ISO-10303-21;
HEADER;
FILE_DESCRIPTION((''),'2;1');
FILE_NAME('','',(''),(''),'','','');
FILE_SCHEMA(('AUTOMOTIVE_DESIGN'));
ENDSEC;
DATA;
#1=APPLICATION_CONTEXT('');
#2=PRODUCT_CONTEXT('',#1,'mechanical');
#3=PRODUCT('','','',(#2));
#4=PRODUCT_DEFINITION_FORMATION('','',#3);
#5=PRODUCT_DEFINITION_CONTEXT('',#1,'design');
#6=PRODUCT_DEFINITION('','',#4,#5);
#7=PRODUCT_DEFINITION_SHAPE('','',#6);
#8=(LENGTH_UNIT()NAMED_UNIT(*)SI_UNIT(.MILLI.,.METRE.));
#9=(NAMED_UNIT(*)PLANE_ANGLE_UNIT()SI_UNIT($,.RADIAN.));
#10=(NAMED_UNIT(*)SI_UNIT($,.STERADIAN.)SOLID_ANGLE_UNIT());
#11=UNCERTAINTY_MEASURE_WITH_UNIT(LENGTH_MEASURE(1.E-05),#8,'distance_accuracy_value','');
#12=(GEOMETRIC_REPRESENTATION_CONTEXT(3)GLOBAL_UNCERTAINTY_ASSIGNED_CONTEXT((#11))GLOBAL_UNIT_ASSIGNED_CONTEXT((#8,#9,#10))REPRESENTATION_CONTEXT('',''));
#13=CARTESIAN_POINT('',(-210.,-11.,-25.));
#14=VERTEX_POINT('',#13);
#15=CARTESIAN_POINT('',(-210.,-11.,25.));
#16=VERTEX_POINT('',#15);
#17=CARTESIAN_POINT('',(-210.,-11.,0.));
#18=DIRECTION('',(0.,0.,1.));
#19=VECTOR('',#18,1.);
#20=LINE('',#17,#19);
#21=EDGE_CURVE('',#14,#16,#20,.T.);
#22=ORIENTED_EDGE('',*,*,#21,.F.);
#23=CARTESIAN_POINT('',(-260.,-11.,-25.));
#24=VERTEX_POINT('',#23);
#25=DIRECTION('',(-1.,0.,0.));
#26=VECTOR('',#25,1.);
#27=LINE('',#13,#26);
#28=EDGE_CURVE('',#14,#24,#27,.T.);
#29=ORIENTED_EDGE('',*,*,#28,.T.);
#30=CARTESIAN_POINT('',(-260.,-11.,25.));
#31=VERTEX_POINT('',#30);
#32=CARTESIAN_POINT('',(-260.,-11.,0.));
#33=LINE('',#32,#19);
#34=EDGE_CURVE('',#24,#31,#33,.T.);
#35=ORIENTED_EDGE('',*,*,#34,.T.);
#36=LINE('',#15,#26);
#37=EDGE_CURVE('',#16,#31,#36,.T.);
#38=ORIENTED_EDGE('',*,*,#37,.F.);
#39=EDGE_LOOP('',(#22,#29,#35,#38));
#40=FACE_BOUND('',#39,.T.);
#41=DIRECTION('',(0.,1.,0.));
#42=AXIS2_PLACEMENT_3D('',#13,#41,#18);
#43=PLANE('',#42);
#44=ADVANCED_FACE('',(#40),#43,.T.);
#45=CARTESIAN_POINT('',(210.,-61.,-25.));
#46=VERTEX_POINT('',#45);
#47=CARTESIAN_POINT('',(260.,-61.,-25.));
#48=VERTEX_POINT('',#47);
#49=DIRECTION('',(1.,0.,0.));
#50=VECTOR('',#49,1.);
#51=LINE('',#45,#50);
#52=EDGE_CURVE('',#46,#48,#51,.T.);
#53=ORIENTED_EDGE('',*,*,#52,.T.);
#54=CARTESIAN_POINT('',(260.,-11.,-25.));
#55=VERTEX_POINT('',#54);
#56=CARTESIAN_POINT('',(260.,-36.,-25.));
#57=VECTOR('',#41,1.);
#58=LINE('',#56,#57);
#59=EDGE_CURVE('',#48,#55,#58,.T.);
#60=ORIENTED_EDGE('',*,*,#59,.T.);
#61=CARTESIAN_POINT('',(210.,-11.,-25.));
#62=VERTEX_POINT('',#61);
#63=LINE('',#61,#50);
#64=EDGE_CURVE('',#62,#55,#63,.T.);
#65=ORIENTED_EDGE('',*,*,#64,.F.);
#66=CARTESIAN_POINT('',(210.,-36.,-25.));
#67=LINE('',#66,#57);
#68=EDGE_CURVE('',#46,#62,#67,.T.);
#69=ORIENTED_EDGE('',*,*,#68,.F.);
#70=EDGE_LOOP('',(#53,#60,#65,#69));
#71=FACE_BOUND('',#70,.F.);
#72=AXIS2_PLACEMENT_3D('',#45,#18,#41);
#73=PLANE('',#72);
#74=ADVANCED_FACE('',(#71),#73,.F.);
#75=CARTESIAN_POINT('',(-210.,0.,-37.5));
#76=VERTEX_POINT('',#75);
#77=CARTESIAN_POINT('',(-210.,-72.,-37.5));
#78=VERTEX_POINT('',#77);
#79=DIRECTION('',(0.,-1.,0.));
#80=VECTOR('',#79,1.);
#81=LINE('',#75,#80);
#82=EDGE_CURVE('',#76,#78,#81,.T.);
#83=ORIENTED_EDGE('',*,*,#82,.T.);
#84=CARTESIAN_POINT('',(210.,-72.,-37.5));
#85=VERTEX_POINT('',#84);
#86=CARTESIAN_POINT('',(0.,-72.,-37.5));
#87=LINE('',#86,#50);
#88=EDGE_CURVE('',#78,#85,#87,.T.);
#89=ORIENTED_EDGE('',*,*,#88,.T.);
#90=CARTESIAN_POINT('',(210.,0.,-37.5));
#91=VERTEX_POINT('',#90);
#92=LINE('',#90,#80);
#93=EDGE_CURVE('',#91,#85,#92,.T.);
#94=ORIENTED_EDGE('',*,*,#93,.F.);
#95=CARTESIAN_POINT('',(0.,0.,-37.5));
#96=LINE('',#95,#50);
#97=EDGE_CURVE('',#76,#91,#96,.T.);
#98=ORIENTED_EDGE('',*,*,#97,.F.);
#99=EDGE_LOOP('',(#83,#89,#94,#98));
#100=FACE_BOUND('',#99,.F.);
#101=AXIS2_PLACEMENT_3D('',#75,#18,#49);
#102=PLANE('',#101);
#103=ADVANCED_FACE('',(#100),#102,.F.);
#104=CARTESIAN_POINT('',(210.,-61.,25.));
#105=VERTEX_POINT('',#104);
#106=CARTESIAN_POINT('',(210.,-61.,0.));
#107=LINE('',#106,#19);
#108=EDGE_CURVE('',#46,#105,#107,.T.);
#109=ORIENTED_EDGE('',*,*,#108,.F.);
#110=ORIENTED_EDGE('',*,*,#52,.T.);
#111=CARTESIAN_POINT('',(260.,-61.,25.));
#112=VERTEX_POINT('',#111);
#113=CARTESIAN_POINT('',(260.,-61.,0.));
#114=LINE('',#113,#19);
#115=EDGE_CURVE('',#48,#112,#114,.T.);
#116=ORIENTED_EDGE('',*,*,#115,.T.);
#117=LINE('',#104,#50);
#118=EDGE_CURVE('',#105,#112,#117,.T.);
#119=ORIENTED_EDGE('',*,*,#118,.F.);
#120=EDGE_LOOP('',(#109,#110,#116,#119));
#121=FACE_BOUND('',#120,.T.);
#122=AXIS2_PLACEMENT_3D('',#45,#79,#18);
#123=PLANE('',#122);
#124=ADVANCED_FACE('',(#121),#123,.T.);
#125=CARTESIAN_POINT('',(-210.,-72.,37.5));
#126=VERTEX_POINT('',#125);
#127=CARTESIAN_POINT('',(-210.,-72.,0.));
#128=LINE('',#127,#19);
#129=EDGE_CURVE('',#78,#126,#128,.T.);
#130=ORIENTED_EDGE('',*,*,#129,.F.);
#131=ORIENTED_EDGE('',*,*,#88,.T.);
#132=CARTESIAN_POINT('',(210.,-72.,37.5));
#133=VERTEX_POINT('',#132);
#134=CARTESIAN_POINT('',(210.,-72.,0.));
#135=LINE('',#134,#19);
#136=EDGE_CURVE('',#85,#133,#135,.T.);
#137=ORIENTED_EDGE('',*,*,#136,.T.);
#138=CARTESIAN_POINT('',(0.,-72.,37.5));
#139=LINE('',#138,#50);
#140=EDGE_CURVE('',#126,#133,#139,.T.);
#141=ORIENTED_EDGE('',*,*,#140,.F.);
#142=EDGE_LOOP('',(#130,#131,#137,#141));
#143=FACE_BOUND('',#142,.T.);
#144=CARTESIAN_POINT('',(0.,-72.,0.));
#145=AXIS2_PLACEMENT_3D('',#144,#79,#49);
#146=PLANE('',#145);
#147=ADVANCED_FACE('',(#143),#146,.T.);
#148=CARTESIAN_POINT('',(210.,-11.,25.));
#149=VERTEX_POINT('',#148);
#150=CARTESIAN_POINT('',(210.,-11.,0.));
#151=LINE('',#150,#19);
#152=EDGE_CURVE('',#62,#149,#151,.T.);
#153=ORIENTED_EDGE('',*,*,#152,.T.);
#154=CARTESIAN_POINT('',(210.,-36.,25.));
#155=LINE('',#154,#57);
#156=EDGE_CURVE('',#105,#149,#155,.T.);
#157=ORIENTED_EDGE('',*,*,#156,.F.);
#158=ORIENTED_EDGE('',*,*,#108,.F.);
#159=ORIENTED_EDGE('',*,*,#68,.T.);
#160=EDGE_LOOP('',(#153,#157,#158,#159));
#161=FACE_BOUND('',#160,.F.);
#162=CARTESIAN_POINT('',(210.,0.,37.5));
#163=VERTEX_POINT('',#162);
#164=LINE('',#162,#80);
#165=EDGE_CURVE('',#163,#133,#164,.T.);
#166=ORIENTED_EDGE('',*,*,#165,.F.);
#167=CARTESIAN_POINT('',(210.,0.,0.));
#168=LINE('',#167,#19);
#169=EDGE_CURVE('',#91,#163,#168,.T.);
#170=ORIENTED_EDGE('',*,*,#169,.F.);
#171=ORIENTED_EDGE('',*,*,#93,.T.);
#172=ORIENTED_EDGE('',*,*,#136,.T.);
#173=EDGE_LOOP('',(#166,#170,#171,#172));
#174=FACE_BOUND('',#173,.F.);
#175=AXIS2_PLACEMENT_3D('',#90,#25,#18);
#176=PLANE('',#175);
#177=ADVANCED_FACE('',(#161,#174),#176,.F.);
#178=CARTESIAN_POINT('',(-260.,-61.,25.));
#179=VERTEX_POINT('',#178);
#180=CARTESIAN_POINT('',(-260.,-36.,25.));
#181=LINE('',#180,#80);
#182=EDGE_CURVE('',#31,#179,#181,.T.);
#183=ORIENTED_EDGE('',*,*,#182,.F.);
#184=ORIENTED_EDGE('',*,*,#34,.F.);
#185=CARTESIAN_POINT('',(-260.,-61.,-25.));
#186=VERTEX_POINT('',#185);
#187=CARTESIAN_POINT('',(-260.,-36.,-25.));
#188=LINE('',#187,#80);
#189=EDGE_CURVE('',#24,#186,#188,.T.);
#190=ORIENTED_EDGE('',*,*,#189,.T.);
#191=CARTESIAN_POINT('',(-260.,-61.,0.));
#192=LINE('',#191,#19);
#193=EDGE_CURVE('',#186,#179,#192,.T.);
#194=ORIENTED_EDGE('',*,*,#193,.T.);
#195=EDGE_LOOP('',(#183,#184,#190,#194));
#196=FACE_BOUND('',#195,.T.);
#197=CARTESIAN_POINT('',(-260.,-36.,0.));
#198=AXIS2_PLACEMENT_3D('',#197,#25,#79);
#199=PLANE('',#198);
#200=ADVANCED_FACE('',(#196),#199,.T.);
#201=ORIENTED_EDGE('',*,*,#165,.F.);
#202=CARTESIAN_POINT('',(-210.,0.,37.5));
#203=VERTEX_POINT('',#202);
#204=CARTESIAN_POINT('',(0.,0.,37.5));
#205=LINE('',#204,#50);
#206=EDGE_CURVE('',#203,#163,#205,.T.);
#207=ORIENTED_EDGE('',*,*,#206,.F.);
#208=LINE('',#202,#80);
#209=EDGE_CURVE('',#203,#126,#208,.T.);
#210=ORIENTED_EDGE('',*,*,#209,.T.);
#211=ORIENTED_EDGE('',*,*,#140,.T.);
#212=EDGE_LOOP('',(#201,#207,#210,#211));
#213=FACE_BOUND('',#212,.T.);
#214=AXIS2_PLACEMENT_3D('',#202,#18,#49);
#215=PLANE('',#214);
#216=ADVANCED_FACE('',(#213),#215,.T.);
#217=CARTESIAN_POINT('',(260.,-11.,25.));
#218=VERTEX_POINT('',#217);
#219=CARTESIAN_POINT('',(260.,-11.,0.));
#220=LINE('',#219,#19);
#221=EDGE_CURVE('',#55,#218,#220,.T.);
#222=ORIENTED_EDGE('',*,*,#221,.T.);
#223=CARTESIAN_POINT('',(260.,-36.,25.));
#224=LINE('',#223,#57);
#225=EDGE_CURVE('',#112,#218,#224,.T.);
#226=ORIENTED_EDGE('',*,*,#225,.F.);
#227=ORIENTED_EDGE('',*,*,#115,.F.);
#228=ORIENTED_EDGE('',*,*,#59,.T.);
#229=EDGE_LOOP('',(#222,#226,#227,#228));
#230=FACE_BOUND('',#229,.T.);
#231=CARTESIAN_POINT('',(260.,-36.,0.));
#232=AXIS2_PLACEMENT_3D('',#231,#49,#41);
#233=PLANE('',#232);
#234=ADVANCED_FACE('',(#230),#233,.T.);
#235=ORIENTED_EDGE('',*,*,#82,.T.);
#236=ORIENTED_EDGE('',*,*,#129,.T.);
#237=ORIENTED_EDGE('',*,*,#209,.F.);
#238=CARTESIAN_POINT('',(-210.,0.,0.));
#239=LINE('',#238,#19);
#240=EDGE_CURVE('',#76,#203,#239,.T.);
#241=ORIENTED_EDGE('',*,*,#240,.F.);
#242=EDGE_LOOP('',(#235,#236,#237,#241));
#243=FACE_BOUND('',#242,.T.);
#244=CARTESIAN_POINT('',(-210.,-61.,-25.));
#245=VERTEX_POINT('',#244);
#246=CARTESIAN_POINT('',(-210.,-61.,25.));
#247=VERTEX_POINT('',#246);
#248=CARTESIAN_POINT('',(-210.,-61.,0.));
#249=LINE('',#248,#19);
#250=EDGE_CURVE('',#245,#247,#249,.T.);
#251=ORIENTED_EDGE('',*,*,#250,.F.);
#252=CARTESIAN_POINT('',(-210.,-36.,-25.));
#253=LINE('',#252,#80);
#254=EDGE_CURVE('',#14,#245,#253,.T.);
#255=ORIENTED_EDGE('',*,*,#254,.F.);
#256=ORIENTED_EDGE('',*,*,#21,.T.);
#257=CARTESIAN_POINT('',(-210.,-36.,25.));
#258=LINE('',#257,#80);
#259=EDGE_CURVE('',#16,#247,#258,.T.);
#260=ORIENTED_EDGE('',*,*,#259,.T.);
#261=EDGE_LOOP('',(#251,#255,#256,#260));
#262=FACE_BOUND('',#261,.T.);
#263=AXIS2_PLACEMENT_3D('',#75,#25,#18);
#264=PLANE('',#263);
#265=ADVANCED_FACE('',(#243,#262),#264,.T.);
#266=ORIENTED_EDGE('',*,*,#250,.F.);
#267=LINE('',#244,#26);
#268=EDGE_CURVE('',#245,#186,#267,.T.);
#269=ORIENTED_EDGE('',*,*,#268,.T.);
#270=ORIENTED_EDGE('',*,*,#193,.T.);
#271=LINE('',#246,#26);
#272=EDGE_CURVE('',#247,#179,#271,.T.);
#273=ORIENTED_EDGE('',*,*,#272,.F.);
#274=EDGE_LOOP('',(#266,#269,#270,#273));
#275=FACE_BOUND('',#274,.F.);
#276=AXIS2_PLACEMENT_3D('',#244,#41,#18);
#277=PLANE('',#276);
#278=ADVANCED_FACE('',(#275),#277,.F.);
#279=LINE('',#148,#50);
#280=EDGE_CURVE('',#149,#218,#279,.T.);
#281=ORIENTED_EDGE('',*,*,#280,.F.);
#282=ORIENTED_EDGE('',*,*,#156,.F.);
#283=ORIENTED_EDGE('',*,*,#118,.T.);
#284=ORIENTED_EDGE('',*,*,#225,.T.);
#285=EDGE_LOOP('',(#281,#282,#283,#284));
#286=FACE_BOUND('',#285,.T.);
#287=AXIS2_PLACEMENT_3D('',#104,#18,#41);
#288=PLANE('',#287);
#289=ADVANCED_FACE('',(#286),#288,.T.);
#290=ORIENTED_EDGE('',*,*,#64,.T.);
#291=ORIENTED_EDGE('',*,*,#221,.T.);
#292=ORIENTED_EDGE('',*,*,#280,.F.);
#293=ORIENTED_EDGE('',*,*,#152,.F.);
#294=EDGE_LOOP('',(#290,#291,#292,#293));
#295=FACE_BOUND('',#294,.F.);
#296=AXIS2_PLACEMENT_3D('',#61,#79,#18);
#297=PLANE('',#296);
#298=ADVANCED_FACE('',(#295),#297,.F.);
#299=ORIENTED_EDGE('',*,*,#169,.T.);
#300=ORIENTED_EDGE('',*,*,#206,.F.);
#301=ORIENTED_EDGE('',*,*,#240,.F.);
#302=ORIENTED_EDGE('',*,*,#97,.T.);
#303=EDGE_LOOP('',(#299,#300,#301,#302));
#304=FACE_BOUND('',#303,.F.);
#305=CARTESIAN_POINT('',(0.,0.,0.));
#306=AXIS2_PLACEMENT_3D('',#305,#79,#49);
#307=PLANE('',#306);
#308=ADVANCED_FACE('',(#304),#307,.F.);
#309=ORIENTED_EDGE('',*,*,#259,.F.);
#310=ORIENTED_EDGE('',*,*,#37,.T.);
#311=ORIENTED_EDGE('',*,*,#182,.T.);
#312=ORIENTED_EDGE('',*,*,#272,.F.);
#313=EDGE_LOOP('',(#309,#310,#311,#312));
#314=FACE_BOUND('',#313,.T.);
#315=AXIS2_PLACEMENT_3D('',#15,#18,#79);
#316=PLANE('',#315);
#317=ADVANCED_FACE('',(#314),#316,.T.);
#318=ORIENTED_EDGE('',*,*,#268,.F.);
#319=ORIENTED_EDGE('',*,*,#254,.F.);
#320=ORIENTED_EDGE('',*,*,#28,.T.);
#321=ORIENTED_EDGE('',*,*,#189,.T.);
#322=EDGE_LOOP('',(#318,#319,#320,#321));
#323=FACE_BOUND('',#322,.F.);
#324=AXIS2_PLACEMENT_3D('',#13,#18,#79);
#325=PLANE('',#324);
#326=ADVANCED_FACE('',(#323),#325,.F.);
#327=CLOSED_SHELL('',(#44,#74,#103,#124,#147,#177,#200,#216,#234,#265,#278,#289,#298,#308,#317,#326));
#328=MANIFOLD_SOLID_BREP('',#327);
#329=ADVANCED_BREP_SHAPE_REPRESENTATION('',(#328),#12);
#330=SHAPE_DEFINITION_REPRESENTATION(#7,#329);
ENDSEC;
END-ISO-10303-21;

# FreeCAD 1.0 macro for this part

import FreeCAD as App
import Part
import Sketcher
from FreeCAD import Vector
Q = App.Units.Quantity


def add_polygon(sketch, points):
    """Adds a closed chain of lines whose ends are joined by coincident constraints."""
    first, n = sketch.GeometryCount, len(points)
    for a, b in zip(points, points[1:] + points[:1]):
        sketch.addGeometry(Part.LineSegment(App.Vector(*a, 0), App.Vector(*b, 0)), False)
    for i in range(n):
        sketch.addConstraint(Sketcher.Constraint("Coincident", first + i, 2, first + (i + 1) % n, 1))

doc = App.newDocument("Part")
body = doc.addObject("PartDesign::Body", "Body")

# Sketch on XZ plane
sketch1 = body.newObject("Sketcher::SketchObject", "Sketch")
sketch1.AttachmentSupport = (doc.getObject("XZ_Plane"), [""])
sketch1.MapMode = "FlatFace"
add_polygon(sketch1, [(-210, 38), (-210, -38), (210, -38), (210, 38)])  # lines 0-3
sketch1.addConstraint(Sketcher.Constraint("Vertical", 0))
sketch1.addConstraint(Sketcher.Constraint("Horizontal", 1))
sketch1.addConstraint(Sketcher.Constraint("Vertical", 2))
sketch1.addConstraint(Sketcher.Constraint("Horizontal", 3))
sketch1.addConstraint(Sketcher.Constraint("Symmetric", 0, 2, 2, 2, -1, 1))
sketch1.addConstraint(Sketcher.Constraint("DistanceX", 1, 1, 1, 2, Q("420 mm")))
sketch1.addConstraint(Sketcher.Constraint("DistanceY", 0, 2, 0, 1, Q("75 mm")))
pad1 = body.newObject("PartDesign::Pad", "Pad")
pad1.Profile = sketch1
pad1.Length = 72

# Sketch on YZ plane
sketch2 = body.newObject("Sketcher::SketchObject", "Sketch001")
sketch2.AttachmentSupport = (doc.getObject("YZ_Plane"), [""])
sketch2.MapMode = "FlatFace"
sketch2.AttachmentOffset = App.Placement(Vector(0, 0, 210), App.Rotation())
add_polygon(sketch2, [(-61, 25), (-61, -25), (-11, -25), (-11, 25)])  # lines 0-3
sketch2.addConstraint(Sketcher.Constraint("Vertical", 0))
sketch2.addConstraint(Sketcher.Constraint("Horizontal", 1))
sketch2.addConstraint(Sketcher.Constraint("Vertical", 2))
sketch2.addConstraint(Sketcher.Constraint("Horizontal", 3))
sketch2.addConstraint(Sketcher.Constraint("Equal", 3, 0))
sketch2.addConstraint(Sketcher.Constraint("DistanceX", 1, 1, 1, 2, Q("50 mm")))
sketch2.addConstraint(Sketcher.Constraint("DistanceX", 0, 2, -1, 1, Q("61 mm")))
sketch2.addConstraint(Sketcher.Constraint("DistanceY", 0, 2, -1, 1, Q("25 mm")))
pad2 = body.newObject("PartDesign::Pad", "Pad001")
pad2.Profile = sketch2
pad2.Length = 50

# Sketch on YZ plane
sketch3 = body.newObject("Sketcher::SketchObject", "Sketch002")
sketch3.AttachmentSupport = (doc.getObject("YZ_Plane"), [""])
sketch3.MapMode = "FlatFace"
sketch3.AttachmentOffset = App.Placement(Vector(0, 0, -210), App.Rotation())
add_polygon(sketch3, [(-11, 25), (-11, -25), (-61, -25), (-61, 25)])  # lines 0-3
sketch3.addConstraint(Sketcher.Constraint("Vertical", 0))
sketch3.addConstraint(Sketcher.Constraint("Horizontal", 1))
sketch3.addConstraint(Sketcher.Constraint("Vertical", 2))
sketch3.addConstraint(Sketcher.Constraint("Horizontal", 3))
sketch3.addConstraint(Sketcher.Constraint("Equal", 3, 0))
sketch3.addConstraint(Sketcher.Constraint("DistanceX", 1, 2, 1, 1, Q("50 mm")))
sketch3.addConstraint(Sketcher.Constraint("DistanceX", 0, 2, -1, 1, Q("11 mm")))
sketch3.addConstraint(Sketcher.Constraint("DistanceY", 0, 2, -1, 1, Q("25 mm")))
pad3 = body.newObject("PartDesign::Pad", "Pad002")
pad3.Profile = sketch3
pad3.Length = 50
pad3.Reversed = True

doc.recompute()
